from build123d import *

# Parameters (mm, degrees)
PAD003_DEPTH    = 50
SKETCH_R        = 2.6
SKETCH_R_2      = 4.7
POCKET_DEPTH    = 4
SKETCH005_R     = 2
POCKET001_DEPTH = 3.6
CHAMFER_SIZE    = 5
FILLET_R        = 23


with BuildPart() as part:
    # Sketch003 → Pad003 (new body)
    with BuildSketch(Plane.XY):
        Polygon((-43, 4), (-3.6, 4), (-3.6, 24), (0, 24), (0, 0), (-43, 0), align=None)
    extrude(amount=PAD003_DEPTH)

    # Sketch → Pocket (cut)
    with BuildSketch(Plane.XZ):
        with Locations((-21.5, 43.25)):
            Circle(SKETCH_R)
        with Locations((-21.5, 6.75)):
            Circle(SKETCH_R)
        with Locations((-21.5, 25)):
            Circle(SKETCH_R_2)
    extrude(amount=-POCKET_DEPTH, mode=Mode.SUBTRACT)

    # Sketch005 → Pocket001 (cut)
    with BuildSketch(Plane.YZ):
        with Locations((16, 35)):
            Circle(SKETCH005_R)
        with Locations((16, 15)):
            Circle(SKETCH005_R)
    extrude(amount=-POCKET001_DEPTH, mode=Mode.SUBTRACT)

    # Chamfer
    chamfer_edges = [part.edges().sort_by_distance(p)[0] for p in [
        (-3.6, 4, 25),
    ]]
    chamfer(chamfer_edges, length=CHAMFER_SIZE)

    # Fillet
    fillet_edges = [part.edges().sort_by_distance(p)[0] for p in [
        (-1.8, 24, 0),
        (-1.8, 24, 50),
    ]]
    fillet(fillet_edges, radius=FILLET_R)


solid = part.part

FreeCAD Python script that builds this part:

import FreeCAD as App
import Part
import Sketcher

V = App.Vector


def edges_at(feature, points):
    """Names of the edges that pass closest to the given points."""
    edges = feature.Shape.Edges
    near = lambda p: min(range(len(edges)), key=lambda i: edges[i].distToShape(Part.Vertex(*p))[0])
    return sorted({f"Edge{near(p) + 1}" for p in points})


def add_polygon(sketch, points):
    """Adds a closed chain of lines whose ends are joined by coincident constraints."""
    first, n = sketch.GeometryCount, len(points)
    for a, b in zip(points, points[1:] + points[:1]):
        sketch.addGeometry(Part.LineSegment(App.Vector(*a, 0), App.Vector(*b, 0)), False)
    for i in range(n):
        sketch.addConstraint(Sketcher.Constraint("Coincident", first + i, 2, first + (i + 1) % n, 1))

doc = App.newDocument("Part")
body = doc.addObject("PartDesign::Body", "Body")

sketch1 = body.newObject("Sketcher::SketchObject", "Sketch")
sketch1.AttachmentSupport = (doc.getObject("XY_Plane"), [""])
sketch1.MapMode = "FlatFace"
add_polygon(sketch1, [(-3.6, 4), (-43, 4), (-43, 0), (0, 0), (0, 24), (-3.6, 24)])
sketch1.addConstraint([
    Sketcher.Constraint("Horizontal", 0),
    Sketcher.Constraint("Vertical", 1),
    Sketcher.Constraint("Horizontal", 2),
    Sketcher.Constraint("Vertical", 3),
    Sketcher.Constraint("Horizontal", 4),
    Sketcher.Constraint("Vertical", 5),
    Sketcher.Constraint("Coincident", 2, 2, -1, 1),
    Sketcher.Constraint("DistanceX", 2, 1, 2, 2, 43.0),
    Sketcher.Constraint("DistanceY", 1, 2, 1, 1, 4.0),
    Sketcher.Constraint("DistanceY", 3, 1, 3, 2, 24.0),
    Sketcher.Constraint("DistanceX", 0, 2, 0, 1, 39.4),
])
pad1 = body.newObject("PartDesign::Pad", "Pad")
pad1.Profile = sketch1
pad1.Length = 50

sketch2 = body.newObject("Sketcher::SketchObject", "Sketch001")
sketch2.AttachmentSupport = (doc.getObject("XZ_Plane"), [""])
sketch2.MapMode = "FlatFace"
sketch2.addGeometry([
    Part.Circle(V(-21.5, 43.2, 0), V(0, 0, 1), 2.6),
    Part.Circle(V(-21.5, 6.8, 0), V(0, 0, 1), 2.6),
    Part.Circle(V(-21.5, 25, 0), V(0, 0, 1), 4.7),
], False)
sketch2.addConstraint([
    Sketcher.Constraint("Equal", 0, 1),
    Sketcher.Constraint("Vertical", 0, 3, 1, 3),
    Sketcher.Constraint("Vertical", 1, 3, 2, 3),
    Sketcher.Constraint("Diameter", 0, 5.2),
    Sketcher.Constraint("Diameter", 2, 9.4),
    Sketcher.Constraint("DistanceY", -1, 1, 2, 3, 25.0),
    Sketcher.Constraint("DistanceX", 0, 3, -1, 1, 21.5),
    Sketcher.Constraint("DistanceY", 1, 3, 0, 3, 36.5),
    Sketcher.Constraint("DistanceY", -1, 1, 0, 3, 43.25),
])
pocket1 = body.newObject("PartDesign::Pocket", "Pocket")
pocket1.Profile = sketch2
pocket1.Length = 4

sketch3 = body.newObject("Sketcher::SketchObject", "Sketch002")
sketch3.AttachmentSupport = (doc.getObject("YZ_Plane"), [""])
sketch3.MapMode = "FlatFace"
sketch3.addGeometry([
    Part.Circle(V(16, 35, 0), V(0, 0, 1), 2),
    Part.Circle(V(16, 15, 0), V(0, 0, 1), 2),
], False)
sketch3.addConstraint([
    Sketcher.Constraint("Equal", 0, 1),
    Sketcher.Constraint("Vertical", 0, 3, 1, 3),
    Sketcher.Constraint("Diameter", 0, 4.0),
    Sketcher.Constraint("DistanceX", -1, 1, 0, 3, 16.0),
    Sketcher.Constraint("DistanceY", -1, 1, 0, 3, 35.0),
    Sketcher.Constraint("DistanceY", -1, 1, 1, 3, 15.0),
])
pocket2 = body.newObject("PartDesign::Pocket", "Pocket001")
pocket2.Profile = sketch3
pocket2.Length = 3.6
doc.recompute()

chamfer = body.newObject("PartDesign::Chamfer", "Chamfer")
chamfer.Base = (pocket2, edges_at(pocket2, [(-3.6, 4, 25)]))
chamfer.Size = 5
doc.recompute()

fillet = body.newObject("PartDesign::Fillet", "Fillet")
fillet.Base = (chamfer, edges_at(chamfer, [(-1.8, 24, 0), (-1.8, 24, 50)]))
fillet.Radius = 23

doc.recompute()
